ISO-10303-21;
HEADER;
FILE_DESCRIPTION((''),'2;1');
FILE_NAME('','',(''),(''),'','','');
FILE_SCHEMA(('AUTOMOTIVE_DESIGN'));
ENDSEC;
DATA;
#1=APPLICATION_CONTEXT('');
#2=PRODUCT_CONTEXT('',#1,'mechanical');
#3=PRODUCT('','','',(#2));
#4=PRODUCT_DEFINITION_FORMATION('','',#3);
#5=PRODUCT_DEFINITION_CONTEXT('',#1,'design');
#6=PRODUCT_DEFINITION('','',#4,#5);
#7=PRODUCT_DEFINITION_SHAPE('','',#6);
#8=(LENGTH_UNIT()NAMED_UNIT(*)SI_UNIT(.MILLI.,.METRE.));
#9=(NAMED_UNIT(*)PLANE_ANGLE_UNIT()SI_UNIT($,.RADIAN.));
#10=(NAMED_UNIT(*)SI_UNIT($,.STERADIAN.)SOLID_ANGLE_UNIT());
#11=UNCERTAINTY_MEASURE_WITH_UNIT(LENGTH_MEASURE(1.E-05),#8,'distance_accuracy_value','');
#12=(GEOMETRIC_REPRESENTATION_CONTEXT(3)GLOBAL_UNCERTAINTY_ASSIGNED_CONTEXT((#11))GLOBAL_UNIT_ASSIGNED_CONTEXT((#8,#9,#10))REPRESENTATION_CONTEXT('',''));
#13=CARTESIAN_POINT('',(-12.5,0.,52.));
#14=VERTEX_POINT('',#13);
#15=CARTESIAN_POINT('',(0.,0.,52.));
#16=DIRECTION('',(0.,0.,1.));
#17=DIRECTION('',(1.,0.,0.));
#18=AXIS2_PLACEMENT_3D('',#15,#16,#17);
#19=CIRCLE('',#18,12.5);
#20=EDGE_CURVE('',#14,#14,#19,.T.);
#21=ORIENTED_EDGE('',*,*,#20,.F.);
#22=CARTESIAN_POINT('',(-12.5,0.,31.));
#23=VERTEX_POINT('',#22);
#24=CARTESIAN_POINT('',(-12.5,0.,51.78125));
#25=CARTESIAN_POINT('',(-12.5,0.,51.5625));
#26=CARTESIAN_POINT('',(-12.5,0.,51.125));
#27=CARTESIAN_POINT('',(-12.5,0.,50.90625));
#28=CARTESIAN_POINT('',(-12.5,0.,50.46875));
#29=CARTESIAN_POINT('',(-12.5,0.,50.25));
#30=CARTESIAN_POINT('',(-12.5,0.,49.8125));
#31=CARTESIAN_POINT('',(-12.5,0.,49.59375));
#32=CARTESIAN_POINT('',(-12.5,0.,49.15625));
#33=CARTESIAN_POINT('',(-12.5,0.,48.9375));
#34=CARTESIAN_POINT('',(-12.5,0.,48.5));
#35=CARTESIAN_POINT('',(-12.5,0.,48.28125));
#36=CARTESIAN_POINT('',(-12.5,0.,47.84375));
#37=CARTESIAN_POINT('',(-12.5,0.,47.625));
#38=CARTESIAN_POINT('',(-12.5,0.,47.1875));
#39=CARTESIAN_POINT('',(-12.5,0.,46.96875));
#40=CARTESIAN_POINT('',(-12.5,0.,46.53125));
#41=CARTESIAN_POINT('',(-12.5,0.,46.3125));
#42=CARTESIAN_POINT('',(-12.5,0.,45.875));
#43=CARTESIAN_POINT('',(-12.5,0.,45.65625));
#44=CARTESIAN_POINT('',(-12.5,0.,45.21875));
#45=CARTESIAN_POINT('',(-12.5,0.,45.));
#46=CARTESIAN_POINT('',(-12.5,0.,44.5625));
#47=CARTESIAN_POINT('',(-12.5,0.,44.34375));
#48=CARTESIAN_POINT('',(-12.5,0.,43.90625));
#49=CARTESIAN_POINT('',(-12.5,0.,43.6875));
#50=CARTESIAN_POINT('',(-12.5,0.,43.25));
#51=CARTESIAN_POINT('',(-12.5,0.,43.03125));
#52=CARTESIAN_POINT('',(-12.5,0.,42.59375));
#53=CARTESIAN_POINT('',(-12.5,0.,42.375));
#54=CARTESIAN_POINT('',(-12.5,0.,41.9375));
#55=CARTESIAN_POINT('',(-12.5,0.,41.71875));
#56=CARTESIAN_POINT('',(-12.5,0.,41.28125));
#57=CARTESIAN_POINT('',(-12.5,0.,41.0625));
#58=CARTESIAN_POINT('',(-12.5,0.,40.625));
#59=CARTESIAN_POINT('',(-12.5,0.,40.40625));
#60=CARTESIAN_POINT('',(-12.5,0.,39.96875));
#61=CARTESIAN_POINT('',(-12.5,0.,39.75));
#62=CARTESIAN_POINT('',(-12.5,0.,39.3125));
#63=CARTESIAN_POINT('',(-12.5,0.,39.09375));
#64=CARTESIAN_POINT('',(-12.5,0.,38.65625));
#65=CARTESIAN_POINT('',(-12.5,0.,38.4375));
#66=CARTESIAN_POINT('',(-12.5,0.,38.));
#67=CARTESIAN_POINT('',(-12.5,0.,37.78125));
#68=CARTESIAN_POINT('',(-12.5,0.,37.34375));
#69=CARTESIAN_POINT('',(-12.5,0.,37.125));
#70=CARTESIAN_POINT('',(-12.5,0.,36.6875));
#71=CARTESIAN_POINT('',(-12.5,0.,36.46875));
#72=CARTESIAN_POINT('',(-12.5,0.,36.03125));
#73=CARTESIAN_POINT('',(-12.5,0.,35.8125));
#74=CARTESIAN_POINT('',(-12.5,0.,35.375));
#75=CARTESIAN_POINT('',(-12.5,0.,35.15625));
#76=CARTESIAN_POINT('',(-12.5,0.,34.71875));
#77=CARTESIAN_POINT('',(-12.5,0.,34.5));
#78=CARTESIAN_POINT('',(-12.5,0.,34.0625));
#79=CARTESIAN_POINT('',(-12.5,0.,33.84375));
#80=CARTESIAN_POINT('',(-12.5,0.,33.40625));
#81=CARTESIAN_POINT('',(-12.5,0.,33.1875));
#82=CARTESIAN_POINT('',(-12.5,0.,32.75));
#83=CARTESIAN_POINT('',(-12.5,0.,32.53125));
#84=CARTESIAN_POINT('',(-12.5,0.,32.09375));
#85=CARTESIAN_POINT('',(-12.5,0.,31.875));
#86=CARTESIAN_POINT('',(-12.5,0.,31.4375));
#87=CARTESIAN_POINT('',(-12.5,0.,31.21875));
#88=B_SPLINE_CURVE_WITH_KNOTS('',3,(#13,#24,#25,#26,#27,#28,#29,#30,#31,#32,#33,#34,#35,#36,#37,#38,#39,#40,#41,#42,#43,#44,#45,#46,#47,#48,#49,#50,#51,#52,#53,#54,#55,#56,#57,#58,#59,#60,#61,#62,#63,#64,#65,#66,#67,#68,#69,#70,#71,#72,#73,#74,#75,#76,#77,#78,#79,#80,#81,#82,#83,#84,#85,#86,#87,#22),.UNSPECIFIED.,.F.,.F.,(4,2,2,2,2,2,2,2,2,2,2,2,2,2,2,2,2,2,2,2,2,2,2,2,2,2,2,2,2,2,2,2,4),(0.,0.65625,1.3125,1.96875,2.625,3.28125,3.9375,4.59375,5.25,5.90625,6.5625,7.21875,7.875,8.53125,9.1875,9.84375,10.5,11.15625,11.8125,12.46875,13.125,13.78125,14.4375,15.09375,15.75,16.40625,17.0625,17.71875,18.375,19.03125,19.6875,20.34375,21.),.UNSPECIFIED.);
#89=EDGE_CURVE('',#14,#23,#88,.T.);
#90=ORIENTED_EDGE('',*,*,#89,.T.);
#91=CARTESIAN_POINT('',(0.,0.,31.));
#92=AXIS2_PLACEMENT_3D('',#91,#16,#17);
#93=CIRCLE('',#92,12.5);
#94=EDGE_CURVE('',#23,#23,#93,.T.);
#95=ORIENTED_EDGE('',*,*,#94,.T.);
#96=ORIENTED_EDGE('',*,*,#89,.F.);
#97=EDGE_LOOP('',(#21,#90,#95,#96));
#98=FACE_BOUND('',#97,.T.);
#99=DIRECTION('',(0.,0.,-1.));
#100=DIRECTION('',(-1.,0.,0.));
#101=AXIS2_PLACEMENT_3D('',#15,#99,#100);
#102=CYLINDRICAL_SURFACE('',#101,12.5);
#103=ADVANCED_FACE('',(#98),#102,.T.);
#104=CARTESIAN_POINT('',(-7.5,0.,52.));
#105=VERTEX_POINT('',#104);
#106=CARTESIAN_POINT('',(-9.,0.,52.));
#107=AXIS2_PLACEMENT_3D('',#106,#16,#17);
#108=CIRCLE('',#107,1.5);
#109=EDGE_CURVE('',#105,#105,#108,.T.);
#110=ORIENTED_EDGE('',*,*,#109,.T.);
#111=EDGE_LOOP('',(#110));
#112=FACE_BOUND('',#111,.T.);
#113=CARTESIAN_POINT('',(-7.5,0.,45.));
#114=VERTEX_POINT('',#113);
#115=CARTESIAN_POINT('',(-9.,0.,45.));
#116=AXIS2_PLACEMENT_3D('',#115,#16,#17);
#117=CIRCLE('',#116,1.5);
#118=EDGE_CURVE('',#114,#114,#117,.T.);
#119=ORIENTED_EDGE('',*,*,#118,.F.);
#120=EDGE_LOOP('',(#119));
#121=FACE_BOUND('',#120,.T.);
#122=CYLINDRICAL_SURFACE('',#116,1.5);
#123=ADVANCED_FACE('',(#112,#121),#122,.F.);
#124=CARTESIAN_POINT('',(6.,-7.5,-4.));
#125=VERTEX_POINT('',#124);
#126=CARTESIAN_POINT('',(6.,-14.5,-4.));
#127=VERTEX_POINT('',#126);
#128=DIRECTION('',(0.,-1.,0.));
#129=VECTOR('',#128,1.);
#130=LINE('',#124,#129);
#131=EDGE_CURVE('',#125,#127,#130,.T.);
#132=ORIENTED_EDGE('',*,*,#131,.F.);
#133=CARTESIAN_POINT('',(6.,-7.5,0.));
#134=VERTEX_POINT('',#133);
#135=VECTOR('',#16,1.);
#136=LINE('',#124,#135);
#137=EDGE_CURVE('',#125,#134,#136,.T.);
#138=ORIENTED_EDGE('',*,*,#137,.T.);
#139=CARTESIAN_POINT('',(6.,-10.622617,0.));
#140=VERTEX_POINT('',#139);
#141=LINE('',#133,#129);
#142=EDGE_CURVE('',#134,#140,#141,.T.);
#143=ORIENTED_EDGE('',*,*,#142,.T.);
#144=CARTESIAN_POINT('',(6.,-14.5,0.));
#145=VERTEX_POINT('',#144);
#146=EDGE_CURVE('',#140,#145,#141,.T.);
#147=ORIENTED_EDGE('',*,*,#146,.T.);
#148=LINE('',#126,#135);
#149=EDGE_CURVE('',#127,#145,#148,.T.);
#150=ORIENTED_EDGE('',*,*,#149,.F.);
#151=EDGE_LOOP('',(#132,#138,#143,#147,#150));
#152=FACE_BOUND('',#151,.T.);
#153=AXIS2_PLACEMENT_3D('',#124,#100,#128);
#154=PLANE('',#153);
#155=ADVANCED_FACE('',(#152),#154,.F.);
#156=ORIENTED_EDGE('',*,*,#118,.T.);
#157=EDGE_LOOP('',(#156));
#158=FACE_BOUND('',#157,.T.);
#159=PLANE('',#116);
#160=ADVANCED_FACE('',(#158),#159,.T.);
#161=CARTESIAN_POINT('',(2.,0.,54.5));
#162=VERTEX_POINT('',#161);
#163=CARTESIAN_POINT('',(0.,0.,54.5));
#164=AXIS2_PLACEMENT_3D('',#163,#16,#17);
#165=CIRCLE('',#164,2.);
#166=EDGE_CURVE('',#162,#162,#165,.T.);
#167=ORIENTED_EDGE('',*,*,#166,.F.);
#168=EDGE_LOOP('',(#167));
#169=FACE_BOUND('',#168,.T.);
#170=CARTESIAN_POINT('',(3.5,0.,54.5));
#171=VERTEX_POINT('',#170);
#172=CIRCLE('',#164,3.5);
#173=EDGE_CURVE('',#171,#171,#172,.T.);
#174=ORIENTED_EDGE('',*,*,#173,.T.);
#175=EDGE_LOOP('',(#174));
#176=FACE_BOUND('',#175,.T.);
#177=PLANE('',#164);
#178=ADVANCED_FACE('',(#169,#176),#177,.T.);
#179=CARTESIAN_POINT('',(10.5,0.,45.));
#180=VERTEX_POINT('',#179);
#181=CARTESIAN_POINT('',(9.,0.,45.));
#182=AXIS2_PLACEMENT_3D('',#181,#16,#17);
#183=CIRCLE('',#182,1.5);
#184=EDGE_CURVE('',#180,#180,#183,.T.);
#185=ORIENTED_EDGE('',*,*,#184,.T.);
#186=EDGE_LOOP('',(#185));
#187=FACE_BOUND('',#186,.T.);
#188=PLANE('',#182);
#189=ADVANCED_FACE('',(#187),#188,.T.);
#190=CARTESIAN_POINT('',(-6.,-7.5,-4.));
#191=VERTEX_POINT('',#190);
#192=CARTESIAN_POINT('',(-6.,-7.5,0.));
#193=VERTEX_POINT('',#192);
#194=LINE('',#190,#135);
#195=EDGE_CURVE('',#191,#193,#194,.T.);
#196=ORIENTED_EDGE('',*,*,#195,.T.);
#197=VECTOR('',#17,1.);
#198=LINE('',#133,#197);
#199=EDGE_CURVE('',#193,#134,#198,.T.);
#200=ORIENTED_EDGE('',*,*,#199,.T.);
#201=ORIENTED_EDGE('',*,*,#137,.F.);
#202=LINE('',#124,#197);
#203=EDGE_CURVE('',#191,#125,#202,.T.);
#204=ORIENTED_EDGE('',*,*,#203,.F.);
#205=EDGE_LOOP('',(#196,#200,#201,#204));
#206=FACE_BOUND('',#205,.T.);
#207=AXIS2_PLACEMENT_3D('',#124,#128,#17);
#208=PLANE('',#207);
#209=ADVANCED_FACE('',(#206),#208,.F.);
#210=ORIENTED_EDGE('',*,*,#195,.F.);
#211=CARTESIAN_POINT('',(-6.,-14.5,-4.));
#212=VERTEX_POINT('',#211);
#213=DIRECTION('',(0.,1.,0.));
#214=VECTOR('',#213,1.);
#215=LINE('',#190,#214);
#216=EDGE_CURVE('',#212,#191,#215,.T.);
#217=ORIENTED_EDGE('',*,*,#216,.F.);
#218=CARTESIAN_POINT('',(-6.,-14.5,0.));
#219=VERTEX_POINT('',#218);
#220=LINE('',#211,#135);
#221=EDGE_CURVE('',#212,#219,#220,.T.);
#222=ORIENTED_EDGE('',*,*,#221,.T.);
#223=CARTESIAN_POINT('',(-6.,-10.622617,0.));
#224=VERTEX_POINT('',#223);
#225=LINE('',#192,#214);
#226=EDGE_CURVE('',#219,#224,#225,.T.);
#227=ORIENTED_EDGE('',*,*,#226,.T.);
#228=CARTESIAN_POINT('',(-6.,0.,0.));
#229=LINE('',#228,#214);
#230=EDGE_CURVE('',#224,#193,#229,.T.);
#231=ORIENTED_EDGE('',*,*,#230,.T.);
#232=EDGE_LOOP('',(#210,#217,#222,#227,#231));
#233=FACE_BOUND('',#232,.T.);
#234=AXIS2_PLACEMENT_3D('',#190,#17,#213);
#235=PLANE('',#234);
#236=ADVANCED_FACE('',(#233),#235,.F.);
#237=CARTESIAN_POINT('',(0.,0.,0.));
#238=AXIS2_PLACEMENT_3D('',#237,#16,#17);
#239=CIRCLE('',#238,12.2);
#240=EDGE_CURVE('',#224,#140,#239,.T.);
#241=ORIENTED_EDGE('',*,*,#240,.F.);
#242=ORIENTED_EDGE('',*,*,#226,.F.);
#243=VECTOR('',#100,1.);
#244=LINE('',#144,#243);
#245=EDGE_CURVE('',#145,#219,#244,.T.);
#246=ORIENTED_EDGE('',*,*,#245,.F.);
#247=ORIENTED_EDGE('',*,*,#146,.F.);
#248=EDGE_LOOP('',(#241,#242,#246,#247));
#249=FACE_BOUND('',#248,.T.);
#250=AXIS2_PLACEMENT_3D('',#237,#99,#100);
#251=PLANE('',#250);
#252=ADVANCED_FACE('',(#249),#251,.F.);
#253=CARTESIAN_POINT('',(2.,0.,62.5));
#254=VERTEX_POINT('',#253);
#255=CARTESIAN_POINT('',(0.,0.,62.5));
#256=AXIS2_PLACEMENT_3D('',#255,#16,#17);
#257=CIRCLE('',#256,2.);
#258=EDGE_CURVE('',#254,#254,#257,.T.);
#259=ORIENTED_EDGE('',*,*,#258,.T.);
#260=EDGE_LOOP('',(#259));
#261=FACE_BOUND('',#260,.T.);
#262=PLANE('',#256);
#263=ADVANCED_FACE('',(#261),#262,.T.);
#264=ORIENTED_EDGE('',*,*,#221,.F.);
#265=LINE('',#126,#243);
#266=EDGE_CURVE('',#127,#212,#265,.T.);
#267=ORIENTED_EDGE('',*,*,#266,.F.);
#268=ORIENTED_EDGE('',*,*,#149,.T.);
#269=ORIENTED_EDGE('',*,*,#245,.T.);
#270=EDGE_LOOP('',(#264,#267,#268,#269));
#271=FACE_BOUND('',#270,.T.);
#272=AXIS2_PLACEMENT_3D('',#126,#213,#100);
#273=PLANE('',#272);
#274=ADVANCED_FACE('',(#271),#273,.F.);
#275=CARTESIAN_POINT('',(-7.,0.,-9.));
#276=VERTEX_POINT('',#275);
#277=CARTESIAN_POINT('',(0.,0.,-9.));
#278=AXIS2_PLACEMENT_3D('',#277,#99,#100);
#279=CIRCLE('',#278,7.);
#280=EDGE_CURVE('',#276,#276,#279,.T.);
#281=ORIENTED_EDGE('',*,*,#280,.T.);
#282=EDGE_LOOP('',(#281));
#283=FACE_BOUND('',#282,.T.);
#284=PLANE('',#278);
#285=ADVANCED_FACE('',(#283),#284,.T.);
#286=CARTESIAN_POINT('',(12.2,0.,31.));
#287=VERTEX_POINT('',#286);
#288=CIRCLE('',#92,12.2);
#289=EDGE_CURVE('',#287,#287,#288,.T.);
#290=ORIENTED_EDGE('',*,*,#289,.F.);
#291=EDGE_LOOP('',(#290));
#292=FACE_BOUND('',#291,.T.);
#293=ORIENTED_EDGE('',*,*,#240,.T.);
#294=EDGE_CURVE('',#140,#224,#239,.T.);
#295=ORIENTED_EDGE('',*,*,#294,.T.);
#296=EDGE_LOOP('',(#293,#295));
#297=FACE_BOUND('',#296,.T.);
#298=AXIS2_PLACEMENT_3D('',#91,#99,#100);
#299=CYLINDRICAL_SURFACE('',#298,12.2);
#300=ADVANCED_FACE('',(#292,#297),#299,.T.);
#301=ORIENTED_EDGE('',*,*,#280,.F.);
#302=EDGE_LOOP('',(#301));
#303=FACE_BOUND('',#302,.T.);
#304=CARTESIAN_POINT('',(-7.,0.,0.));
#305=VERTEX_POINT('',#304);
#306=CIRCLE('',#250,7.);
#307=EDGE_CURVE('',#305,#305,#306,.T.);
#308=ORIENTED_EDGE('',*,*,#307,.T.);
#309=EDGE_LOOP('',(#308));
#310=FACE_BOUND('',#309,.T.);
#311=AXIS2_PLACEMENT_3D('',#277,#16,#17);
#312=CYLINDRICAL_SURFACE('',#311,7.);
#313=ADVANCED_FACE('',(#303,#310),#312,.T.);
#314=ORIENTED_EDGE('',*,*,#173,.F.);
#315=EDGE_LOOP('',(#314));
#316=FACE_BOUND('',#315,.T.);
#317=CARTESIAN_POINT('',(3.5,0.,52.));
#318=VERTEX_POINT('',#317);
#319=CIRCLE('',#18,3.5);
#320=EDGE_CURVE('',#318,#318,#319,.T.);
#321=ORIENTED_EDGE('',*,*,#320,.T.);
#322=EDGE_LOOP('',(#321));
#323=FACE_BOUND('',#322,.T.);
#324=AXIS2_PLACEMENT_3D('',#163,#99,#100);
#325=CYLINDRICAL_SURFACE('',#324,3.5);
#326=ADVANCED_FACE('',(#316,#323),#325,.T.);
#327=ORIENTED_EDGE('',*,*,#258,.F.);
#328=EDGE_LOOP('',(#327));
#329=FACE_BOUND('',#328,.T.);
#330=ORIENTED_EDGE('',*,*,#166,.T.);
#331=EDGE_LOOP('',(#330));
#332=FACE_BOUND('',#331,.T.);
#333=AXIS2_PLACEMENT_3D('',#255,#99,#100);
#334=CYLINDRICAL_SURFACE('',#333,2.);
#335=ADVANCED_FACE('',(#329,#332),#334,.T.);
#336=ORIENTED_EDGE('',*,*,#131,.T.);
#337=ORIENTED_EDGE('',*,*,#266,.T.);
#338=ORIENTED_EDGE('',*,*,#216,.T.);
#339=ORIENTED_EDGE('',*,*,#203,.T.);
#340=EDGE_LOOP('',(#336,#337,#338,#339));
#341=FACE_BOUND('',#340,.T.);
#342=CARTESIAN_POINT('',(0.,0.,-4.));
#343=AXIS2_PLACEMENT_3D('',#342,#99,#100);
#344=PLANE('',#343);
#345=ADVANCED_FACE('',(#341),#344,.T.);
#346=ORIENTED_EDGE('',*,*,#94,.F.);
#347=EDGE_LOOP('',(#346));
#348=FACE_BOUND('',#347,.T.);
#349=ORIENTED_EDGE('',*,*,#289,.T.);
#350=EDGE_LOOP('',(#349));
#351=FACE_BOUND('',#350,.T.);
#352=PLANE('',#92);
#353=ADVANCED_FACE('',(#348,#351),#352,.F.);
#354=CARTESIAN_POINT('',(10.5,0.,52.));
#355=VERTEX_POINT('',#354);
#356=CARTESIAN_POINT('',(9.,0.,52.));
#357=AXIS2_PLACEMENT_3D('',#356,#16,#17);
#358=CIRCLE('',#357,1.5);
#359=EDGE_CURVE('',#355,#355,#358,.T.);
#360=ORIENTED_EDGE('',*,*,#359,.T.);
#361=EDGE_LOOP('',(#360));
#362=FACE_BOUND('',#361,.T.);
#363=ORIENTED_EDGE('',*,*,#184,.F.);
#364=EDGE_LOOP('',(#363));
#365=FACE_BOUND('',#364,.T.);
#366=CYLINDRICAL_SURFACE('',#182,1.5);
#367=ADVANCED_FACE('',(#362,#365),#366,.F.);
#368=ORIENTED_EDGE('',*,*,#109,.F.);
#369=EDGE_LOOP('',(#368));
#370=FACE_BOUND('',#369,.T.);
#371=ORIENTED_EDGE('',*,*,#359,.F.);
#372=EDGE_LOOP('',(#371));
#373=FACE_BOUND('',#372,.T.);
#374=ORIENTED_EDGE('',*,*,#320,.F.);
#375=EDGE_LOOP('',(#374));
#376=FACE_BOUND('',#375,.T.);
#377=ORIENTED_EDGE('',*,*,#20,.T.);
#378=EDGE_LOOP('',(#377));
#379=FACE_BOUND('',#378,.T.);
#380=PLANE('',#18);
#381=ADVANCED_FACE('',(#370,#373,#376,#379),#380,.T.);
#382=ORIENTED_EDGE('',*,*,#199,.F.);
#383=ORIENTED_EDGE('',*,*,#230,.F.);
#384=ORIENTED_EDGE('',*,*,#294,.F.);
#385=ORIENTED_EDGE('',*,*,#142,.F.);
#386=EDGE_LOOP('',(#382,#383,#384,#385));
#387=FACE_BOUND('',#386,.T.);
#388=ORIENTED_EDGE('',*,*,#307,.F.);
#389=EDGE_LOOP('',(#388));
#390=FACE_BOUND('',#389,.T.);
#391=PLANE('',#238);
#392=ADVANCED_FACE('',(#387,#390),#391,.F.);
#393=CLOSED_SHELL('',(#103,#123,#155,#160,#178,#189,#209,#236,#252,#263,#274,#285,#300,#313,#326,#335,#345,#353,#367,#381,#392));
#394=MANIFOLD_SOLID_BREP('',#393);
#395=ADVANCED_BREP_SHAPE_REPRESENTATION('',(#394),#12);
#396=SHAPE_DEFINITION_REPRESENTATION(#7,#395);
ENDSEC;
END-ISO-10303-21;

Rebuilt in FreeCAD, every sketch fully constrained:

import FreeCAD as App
import Part
import Sketcher

V = App.Vector
Q = App.Units.Quantity

doc = App.newDocument("Part")
params = doc.addObject("Spreadsheet::Sheet", "Params")
for row, (alias, value) in enumerate([
    ("sketch1_diameter", "24.4 mm"),
    ("pad1_length", "31 mm"),
    ("sketch2_diameter", "25 mm"),
    ("pad2_length", "21 mm"),
    ("sketch3_diameter", "7 mm"),
    ("pad3_length", "2.5 mm"),
    ("sketch4_diameter", "4 mm"),
    ("pad4_length", "8 mm"),
    ("sketch5_diameter", "14 mm"),
    ("pad5_length", "9 mm"),
    ("sketch6_width", "12 mm"),
    ("sketch6_height", "7 mm"),
    ("pad6_length", "4 mm"),
    ("sketch7_diameter", "3 mm"),
    ("pocket1_length", "7 mm"),
], start=1):
    params.set(f"A{row}", alias)
    params.set(f"B{row}", "=" + value)
    params.setAlias(f"B{row}", alias)

body = doc.addObject("PartDesign::Body", "Body")

sketch1 = doc.addObject("Sketcher::SketchObject", "Sketch")
body.addObject(sketch1)
sketch1.AttachmentSupport = (doc.XY_Plane, [""])
sketch1.MapMode = "FlatFace"
sketch1.addGeometry(Part.Circle(V(0, 0, 0), V(0, 0, 1), 12.2), False)
sketch1.addConstraint(Sketcher.Constraint("Coincident", 0, 3, -1, 1))
sketch1.addConstraint(Sketcher.Constraint("Diameter", 0, Q("24.4 mm")))
sketch1.setExpression("Constraints[1]", "Params.sketch1_diameter")
pad1 = doc.addObject("PartDesign::Pad", "Pad")
body.addObject(pad1)
pad1.Profile = sketch1
pad1.setExpression("Length", "Params.pad1_length")

sketch2 = doc.addObject("Sketcher::SketchObject", "Sketch001")
body.addObject(sketch2)
sketch2.AttachmentSupport = (doc.XY_Plane, [""])
sketch2.MapMode = "FlatFace"
sketch2.AttachmentOffset = App.Placement(V(0, 0, 31), App.Rotation())
sketch2.addGeometry(Part.Circle(V(0, 0, 0), V(0, 0, 1), 12.5), False)
sketch2.addConstraint(Sketcher.Constraint("Coincident", 0, 3, -1, 1))
sketch2.addConstraint(Sketcher.Constraint("Diameter", 0, Q("25 mm")))
sketch2.setExpression("Constraints[1]", "Params.sketch2_diameter")
pad2 = doc.addObject("PartDesign::Pad", "Pad001")
body.addObject(pad2)
pad2.Profile = sketch2
pad2.setExpression("Length", "Params.pad2_length")

sketch3 = doc.addObject("Sketcher::SketchObject", "Sketch002")
body.addObject(sketch3)
sketch3.AttachmentSupport = (doc.XY_Plane, [""])
sketch3.MapMode = "FlatFace"
sketch3.AttachmentOffset = App.Placement(V(0, 0, 52), App.Rotation())
sketch3.addGeometry(Part.Circle(V(0, 0, 0), V(0, 0, 1), 3.5), False)
sketch3.addConstraint(Sketcher.Constraint("Coincident", 0, 3, -1, 1))
sketch3.addConstraint(Sketcher.Constraint("Diameter", 0, Q("7 mm")))
sketch3.setExpression("Constraints[1]", "Params.sketch3_diameter")
pad3 = doc.addObject("PartDesign::Pad", "Pad002")
body.addObject(pad3)
pad3.Profile = sketch3
pad3.setExpression("Length", "Params.pad3_length")

sketch4 = doc.addObject("Sketcher::SketchObject", "Sketch003")
body.addObject(sketch4)
sketch4.AttachmentSupport = (doc.XY_Plane, [""])
sketch4.MapMode = "FlatFace"
sketch4.AttachmentOffset = App.Placement(V(0, 0, 54.5), App.Rotation())
sketch4.addGeometry(Part.Circle(V(0, 0, 0), V(0, 0, 1), 2), False)
sketch4.addConstraint(Sketcher.Constraint("Coincident", 0, 3, -1, 1))
sketch4.addConstraint(Sketcher.Constraint("Diameter", 0, Q("4 mm")))
sketch4.setExpression("Constraints[1]", "Params.sketch4_diameter")
pad4 = doc.addObject("PartDesign::Pad", "Pad003")
body.addObject(pad4)
pad4.Profile = sketch4
pad4.setExpression("Length", "Params.pad4_length")

sketch5 = doc.addObject("Sketcher::SketchObject", "Sketch004")
body.addObject(sketch5)
sketch5.AttachmentSupport = (doc.XY_Plane, [""])
sketch5.MapMode = "FlatFace"
sketch5.addGeometry(Part.Circle(V(0, 0, 0), V(0, 0, 1), 7), False)
sketch5.addConstraint(Sketcher.Constraint("Coincident", 0, 3, -1, 1))
sketch5.addConstraint(Sketcher.Constraint("Diameter", 0, Q("14 mm")))
sketch5.setExpression("Constraints[1]", "Params.sketch5_diameter")
pad5 = doc.addObject("PartDesign::Pad", "Pad004")
body.addObject(pad5)
pad5.Profile = sketch5
pad5.setExpression("Length", "Params.pad5_length")
pad5.Reversed = True

sketch6 = doc.addObject("Sketcher::SketchObject", "Sketch005")
body.addObject(sketch6)
sketch6.AttachmentSupport = (doc.XY_Plane, [""])
sketch6.MapMode = "FlatFace"
sketch6.addGeometry(Part.LineSegment(V(6, -7.5, 0), V(6, -14.5, 0)), False)
sketch6.addGeometry(Part.LineSegment(V(6, -14.5, 0), V(-6, -14.5, 0)), False)
sketch6.addGeometry(Part.LineSegment(V(-6, -14.5, 0), V(-6, -7.5, 0)), False)
sketch6.addGeometry(Part.LineSegment(V(-6, -7.5, 0), V(6, -7.5, 0)), False)
sketch6.addConstraint(Sketcher.Constraint("Coincident", 0, 2, 1, 1))
sketch6.addConstraint(Sketcher.Constraint("Coincident", 1, 2, 2, 1))
sketch6.addConstraint(Sketcher.Constraint("Coincident", 2, 2, 3, 1))
sketch6.addConstraint(Sketcher.Constraint("Coincident", 3, 2, 0, 1))
sketch6.addConstraint(Sketcher.Constraint("Vertical", 0))
sketch6.addConstraint(Sketcher.Constraint("Horizontal", 1))
sketch6.addConstraint(Sketcher.Constraint("Vertical", 2))
sketch6.addConstraint(Sketcher.Constraint("Horizontal", 3))
sketch6.addConstraint(Sketcher.Constraint("DistanceX", 1, 2, 1, 1, Q("12 mm")))
sketch6.addConstraint(Sketcher.Constraint("DistanceY", 0, 2, 0, 1, Q("7 mm")))
sketch6.addConstraint(Sketcher.Constraint("DistanceX", -1, 1, 0, 2, Q("6 mm")))
sketch6.addConstraint(Sketcher.Constraint("DistanceY", 0, 2, -1, 1, Q("14.5 mm")))
sketch6.setExpression("Constraints[8]", "Params.sketch6_width")
sketch6.setExpression("Constraints[9]", "Params.sketch6_height")
pad6 = doc.addObject("PartDesign::Pad", "Pad005")
body.addObject(pad6)
pad6.Profile = sketch6
pad6.setExpression("Length", "Params.pad6_length")
pad6.Reversed = True

sketch7 = doc.addObject("Sketcher::SketchObject", "Sketch006")
body.addObject(sketch7)
sketch7.AttachmentSupport = (doc.XY_Plane, [""])
sketch7.MapMode = "FlatFace"
sketch7.AttachmentOffset = App.Placement(V(0, 0, 52), App.Rotation())
sketch7.addGeometry(Part.Circle(V(-9, 0, 0), V(0, 0, 1), 1.5), False)
sketch7.addGeometry(Part.Circle(V(9, 0, 0), V(0, 0, 1), 1.5), False)
sketch7.addConstraint(Sketcher.Constraint("Equal", 0, 1))
sketch7.addConstraint(Sketcher.Constraint("Symmetric", 0, 3, 1, 3, -1, 1))
sketch7.addConstraint(Sketcher.Constraint("PointOnObject", 0, 3, -1))
sketch7.addConstraint(Sketcher.Constraint("Diameter", 0, Q("3 mm")))
sketch7.addConstraint(Sketcher.Constraint("DistanceX", 0, 3, -1, 1, Q("9 mm")))
sketch7.setExpression("Constraints[3]", "Params.sketch7_diameter")
pocket1 = doc.addObject("PartDesign::Pocket", "Pocket")
body.addObject(pocket1)
pocket1.Profile = sketch7
pocket1.setExpression("Length", "Params.pocket1_length")

doc.recompute()
